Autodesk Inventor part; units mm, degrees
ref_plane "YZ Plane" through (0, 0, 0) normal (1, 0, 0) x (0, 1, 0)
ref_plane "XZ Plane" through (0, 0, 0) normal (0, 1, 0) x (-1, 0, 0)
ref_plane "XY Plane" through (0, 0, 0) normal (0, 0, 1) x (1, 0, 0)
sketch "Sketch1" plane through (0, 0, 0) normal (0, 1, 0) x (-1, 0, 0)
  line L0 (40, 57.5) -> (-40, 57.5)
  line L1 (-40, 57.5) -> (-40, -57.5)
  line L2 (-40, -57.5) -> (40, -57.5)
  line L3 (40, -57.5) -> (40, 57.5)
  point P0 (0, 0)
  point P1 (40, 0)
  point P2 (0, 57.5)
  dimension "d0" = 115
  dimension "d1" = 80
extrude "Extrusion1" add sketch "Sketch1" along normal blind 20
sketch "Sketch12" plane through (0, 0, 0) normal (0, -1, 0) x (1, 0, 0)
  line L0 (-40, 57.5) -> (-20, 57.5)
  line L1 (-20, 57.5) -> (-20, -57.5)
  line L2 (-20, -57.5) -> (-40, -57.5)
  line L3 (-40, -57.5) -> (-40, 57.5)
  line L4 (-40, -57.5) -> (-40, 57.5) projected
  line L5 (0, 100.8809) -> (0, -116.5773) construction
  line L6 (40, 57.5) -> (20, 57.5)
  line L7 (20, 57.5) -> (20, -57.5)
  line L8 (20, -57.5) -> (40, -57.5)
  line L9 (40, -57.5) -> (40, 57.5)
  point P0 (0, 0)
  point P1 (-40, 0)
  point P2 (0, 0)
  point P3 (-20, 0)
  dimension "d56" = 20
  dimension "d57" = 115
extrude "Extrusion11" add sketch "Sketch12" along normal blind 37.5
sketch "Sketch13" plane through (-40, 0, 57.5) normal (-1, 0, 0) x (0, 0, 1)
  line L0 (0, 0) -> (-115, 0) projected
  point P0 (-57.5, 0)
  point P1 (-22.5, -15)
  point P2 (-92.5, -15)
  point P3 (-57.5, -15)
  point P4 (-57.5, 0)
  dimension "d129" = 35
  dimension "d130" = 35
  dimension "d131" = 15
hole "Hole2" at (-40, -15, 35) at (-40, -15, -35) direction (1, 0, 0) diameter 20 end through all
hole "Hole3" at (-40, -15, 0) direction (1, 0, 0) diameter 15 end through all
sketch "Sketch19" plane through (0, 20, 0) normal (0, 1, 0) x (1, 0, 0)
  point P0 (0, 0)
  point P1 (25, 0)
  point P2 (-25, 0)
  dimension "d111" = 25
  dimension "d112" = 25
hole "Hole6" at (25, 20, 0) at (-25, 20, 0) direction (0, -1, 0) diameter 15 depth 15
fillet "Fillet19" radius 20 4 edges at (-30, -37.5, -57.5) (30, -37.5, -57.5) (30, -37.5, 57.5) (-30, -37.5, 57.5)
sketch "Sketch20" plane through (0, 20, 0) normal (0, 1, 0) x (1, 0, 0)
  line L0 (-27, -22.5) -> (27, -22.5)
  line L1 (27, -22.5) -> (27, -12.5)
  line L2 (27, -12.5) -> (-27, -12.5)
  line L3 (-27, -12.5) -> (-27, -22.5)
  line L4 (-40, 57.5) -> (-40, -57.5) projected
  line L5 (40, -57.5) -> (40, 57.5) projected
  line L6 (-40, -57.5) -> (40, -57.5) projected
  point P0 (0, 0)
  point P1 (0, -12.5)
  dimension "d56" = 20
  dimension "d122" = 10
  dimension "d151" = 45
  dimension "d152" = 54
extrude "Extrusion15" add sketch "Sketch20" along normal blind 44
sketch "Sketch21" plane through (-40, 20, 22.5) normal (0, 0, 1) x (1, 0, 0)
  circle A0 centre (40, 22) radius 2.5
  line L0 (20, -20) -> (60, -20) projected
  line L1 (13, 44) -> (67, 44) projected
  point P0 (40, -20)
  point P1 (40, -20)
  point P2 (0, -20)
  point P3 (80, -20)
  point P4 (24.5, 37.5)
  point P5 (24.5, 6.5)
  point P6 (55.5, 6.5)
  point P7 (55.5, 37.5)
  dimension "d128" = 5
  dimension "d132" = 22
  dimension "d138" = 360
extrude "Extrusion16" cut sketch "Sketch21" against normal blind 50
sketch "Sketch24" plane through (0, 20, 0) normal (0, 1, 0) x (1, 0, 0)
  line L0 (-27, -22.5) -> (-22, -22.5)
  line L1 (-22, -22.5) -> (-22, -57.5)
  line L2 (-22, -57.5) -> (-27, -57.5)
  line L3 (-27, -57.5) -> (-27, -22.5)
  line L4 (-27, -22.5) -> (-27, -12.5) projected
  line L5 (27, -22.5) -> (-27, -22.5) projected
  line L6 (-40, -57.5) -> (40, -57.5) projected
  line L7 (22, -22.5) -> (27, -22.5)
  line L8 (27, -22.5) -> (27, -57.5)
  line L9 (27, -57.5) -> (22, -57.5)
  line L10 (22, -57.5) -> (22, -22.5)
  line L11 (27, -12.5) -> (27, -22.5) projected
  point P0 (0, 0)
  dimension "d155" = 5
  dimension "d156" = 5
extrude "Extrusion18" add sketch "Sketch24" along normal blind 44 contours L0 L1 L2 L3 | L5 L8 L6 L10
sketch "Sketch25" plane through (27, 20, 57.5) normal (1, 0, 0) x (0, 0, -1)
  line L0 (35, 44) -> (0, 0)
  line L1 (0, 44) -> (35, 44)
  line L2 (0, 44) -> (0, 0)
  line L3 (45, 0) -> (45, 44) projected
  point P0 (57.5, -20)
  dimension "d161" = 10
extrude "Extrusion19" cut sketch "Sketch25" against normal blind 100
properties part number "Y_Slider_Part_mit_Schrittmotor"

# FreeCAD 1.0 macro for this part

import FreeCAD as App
import Part
import Sketcher
from FreeCAD import Vector


def edges_at(feature, points):
    """Names of the edges that pass closest to the given points."""
    edges = feature.Shape.Edges
    near = lambda p: min(range(len(edges)), key=lambda i: edges[i].distToShape(Part.Vertex(*p))[0])
    return sorted({f"Edge{near(p) + 1}" for p in points})


def add_polygon(sketch, points):
    """Adds a closed chain of lines whose ends are joined by coincident constraints."""
    first, n = sketch.GeometryCount, len(points)
    for a, b in zip(points, points[1:] + points[:1]):
        sketch.addGeometry(Part.LineSegment(App.Vector(*a, 0), App.Vector(*b, 0)), False)
    for i in range(n):
        sketch.addConstraint(Sketcher.Constraint("Coincident", first + i, 2, first + (i + 1) % n, 1))

doc = App.newDocument("Part")
body = doc.addObject("PartDesign::Body", "Body")

# Sketch on XZ plane
sketch1 = body.newObject("Sketcher::SketchObject", "Sketch")
sketch1.AttachmentSupport = (doc.getObject("XZ_Plane"), [""])
sketch1.MapMode = "FlatFace"
add_polygon(sketch1, [(-40, -57.5), (-40, 57.5), (40, 57.5), (40, -57.5)])  # lines 0-3
sketch1.addConstraint(Sketcher.Constraint("Vertical", 0))
sketch1.addConstraint(Sketcher.Constraint("Horizontal", 1))
sketch1.addConstraint(Sketcher.Constraint("Vertical", 2))
sketch1.addConstraint(Sketcher.Constraint("Horizontal", 3))
sketch1.addConstraint(Sketcher.Constraint("Symmetric", 0, 2, 2, 2, -1, 1))
sketch1.addConstraint(Sketcher.Constraint("DistanceX", 1, 1, 1, 2, 80.0))
sketch1.addConstraint(Sketcher.Constraint("DistanceY", 0, 1, 0, 2, 115.0))
pad1 = body.newObject("PartDesign::Pad", "Pad")
pad1.Profile = sketch1
pad1.Length = 20
pad1.Reversed = True

# Sketch on XZ plane
sketch2 = body.newObject("Sketcher::SketchObject", "Sketch001")
sketch2.AttachmentSupport = (doc.getObject("XZ_Plane"), [""])
sketch2.MapMode = "FlatFace"
add_polygon(sketch2, [(-20, 57.5), (-40, 57.5), (-40, -57.5), (-20, -57.5)])  # lines 0-3
add_polygon(sketch2, [(40, -57.5), (40, 57.5), (20, 57.5), (20, -57.5)])  # lines 4-7
sketch2.addConstraint(Sketcher.Constraint("Horizontal", 0))
sketch2.addConstraint(Sketcher.Constraint("Vertical", 1))
sketch2.addConstraint(Sketcher.Constraint("Horizontal", 2))
sketch2.addConstraint(Sketcher.Constraint("Vertical", 3))
sketch2.addConstraint(Sketcher.Constraint("Vertical", 4))
sketch2.addConstraint(Sketcher.Constraint("Horizontal", 5))
sketch2.addConstraint(Sketcher.Constraint("Vertical", 6))
sketch2.addConstraint(Sketcher.Constraint("Horizontal", 7))
sketch2.addConstraint(Sketcher.Constraint("Symmetric", 1, 2, 4, 2, -1, 1))
sketch2.addConstraint(Sketcher.Constraint("Symmetric", 3, 2, 6, 2, -1, 1))
sketch2.addConstraint(Sketcher.Constraint("Horizontal", 3, 2, 4, 2))
sketch2.addConstraint(Sketcher.Constraint("DistanceX", 0, 2, 0, 1, 20.0))
sketch2.addConstraint(Sketcher.Constraint("DistanceY", 1, 2, 1, 1, 115.0))
sketch2.addConstraint(Sketcher.Constraint("DistanceX", 2, 2, -1, 1, 20.0))
pad2 = body.newObject("PartDesign::Pad", "Pad001")
pad2.Profile = sketch2
pad2.Length = 37.5

# Sketch on YZ plane
sketch3 = body.newObject("Sketcher::SketchObject", "Sketch002")
sketch3.AttachmentSupport = (doc.getObject("YZ_Plane"), [""])
sketch3.MapMode = "FlatFace"
sketch3.AttachmentOffset = App.Placement(Vector(0, 0, -40), App.Rotation())
sketch3.addGeometry(Part.Circle(Vector(-15, 35, 0), Vector(0, 0, 1), 10), False)
sketch3.addGeometry(Part.Circle(Vector(-15, -35, 0), Vector(0, 0, 1), 10), False)
sketch3.addConstraint(Sketcher.Constraint("Equal", 0, 1))
sketch3.addConstraint(Sketcher.Constraint("Symmetric", 0, 3, 1, 3, -1))
sketch3.addConstraint(Sketcher.Constraint("Diameter", 0, 20.0))
sketch3.addConstraint(Sketcher.Constraint("DistanceX", 0, 3, -1, 1, 15.0))
sketch3.addConstraint(Sketcher.Constraint("DistanceY", -1, 1, 0, 3, 35.0))
doc.recompute()
hole = body.newObject("PartDesign::Hole", "Hole")
hole.Profile = sketch3
hole.ThreadType = "None"
hole.Diameter = 20
hole.DepthType = "ThroughAll"
hole.Reversed = True

# Sketch on YZ plane
sketch4 = body.newObject("Sketcher::SketchObject", "Sketch003")
sketch4.AttachmentSupport = (doc.getObject("YZ_Plane"), [""])
sketch4.MapMode = "FlatFace"
sketch4.AttachmentOffset = App.Placement(Vector(0, 0, -40), App.Rotation())
sketch4.addGeometry(Part.Circle(Vector(-15, 0, 0), Vector(0, 0, 1), 7.5), False)
sketch4.addConstraint(Sketcher.Constraint("PointOnObject", 0, 3, -1))
sketch4.addConstraint(Sketcher.Constraint("Diameter", 0, 15.0))
sketch4.addConstraint(Sketcher.Constraint("DistanceX", 0, 3, -1, 1, 15.0))
doc.recompute()
hole2 = body.newObject("PartDesign::Hole", "Hole001")
hole2.Profile = sketch4
hole2.ThreadType = "None"
hole2.Diameter = 15
hole2.DepthType = "ThroughAll"
hole2.Reversed = True

# Sketch on XZ plane
sketch5 = body.newObject("Sketcher::SketchObject", "Sketch004")
sketch5.AttachmentSupport = (doc.getObject("XZ_Plane"), [""])
sketch5.MapMode = "FlatFace"
sketch5.AttachmentOffset = App.Placement(Vector(0, 0, -20), App.Rotation())
sketch5.addGeometry(Part.Circle(Vector(25, 0, 0), Vector(0, 0, 1), 7.5), False)
sketch5.addGeometry(Part.Circle(Vector(-25, 0, 0), Vector(0, 0, 1), 7.5), False)
sketch5.addConstraint(Sketcher.Constraint("Equal", 0, 1))
sketch5.addConstraint(Sketcher.Constraint("Symmetric", 0, 3, 1, 3, -1, 1))
sketch5.addConstraint(Sketcher.Constraint("PointOnObject", 0, 3, -1))
sketch5.addConstraint(Sketcher.Constraint("Diameter", 0, 15.0))
sketch5.addConstraint(Sketcher.Constraint("DistanceX", -1, 1, 0, 3, 25.0))
doc.recompute()
hole3 = body.newObject("PartDesign::Hole", "Hole002")
hole3.Profile = sketch5
hole3.ThreadType = "None"
hole3.Diameter = 15
hole3.DepthType = "Dimension"
hole3.Depth = 15
hole3.DrillPoint = "Flat"
hole3.Reversed = True
doc.recompute()

fillet = body.newObject("PartDesign::Fillet", "Fillet")
fillet.Base = (hole3, edges_at(hole3, [
    (-30, -37.5, -57.5),
    (30, -37.5, -57.5),
    (30, -37.5, 57.5),
    (-30, -37.5, 57.5),
]))
fillet.Radius = 20

# Sketch on XZ plane
sketch6 = body.newObject("Sketcher::SketchObject", "Sketch005")
sketch6.AttachmentSupport = (doc.getObject("XZ_Plane"), [""])
sketch6.MapMode = "FlatFace"
sketch6.AttachmentOffset = App.Placement(Vector(0, 0, -20), App.Rotation())
add_polygon(sketch6, [(-27, 12.5), (-27, 22.5), (27, 22.5), (27, 12.5)])  # lines 0-3
sketch6.addConstraint(Sketcher.Constraint("Vertical", 0))
sketch6.addConstraint(Sketcher.Constraint("Horizontal", 1))
sketch6.addConstraint(Sketcher.Constraint("Vertical", 2))
sketch6.addConstraint(Sketcher.Constraint("Horizontal", 3))
sketch6.addConstraint(Sketcher.Constraint("DistanceX", 1, 1, 1, 2, 54.0))
sketch6.addConstraint(Sketcher.Constraint("DistanceY", 0, 1, 0, 2, 10.0))
sketch6.addConstraint(Sketcher.Constraint("DistanceX", 0, 2, -1, 1, 27.0))
sketch6.addConstraint(Sketcher.Constraint("DistanceY", -1, 1, 0, 2, 22.5))
pad3 = body.newObject("PartDesign::Pad", "Pad002")
pad3.Profile = sketch6
pad3.Length = 44
pad3.Reversed = True

# Sketch on XY plane
sketch7 = body.newObject("Sketcher::SketchObject", "Sketch006")
sketch7.AttachmentSupport = (doc.getObject("XY_Plane"), [""])
sketch7.MapMode = "FlatFace"
sketch7.AttachmentOffset = App.Placement(Vector(0, 0, 22.5), App.Rotation())
sketch7.addGeometry(Part.Circle(Vector(0, 42, 0), Vector(0, 0, 1), 2.5), False)
sketch7.addConstraint(Sketcher.Constraint("PointOnObject", 0, 3, -2))
sketch7.addConstraint(Sketcher.Constraint("Diameter", 0, 5.0))
sketch7.addConstraint(Sketcher.Constraint("DistanceY", -1, 1, 0, 3, 42.0))
pocket1 = body.newObject("PartDesign::Pocket", "Pocket")
pocket1.Profile = sketch7
pocket1.Length = 50

# Sketch on XZ plane
sketch8 = body.newObject("Sketcher::SketchObject", "Sketch007")
sketch8.AttachmentSupport = (doc.getObject("XZ_Plane"), [""])
sketch8.MapMode = "FlatFace"
sketch8.AttachmentOffset = App.Placement(Vector(0, 0, -20), App.Rotation())
add_polygon(sketch8, [(-22, 22.5), (-27, 22.5), (-27, 57.5), (-22, 57.5)])  # lines 0-3
add_polygon(sketch8, [(27, 22.5), (22, 22.5), (22, 57.5), (27, 57.5)])  # lines 4-7
sketch8.addConstraint(Sketcher.Constraint("Horizontal", 0))
sketch8.addConstraint(Sketcher.Constraint("Vertical", 1))
sketch8.addConstraint(Sketcher.Constraint("Horizontal", 2))
sketch8.addConstraint(Sketcher.Constraint("Vertical", 3))
sketch8.addConstraint(Sketcher.Constraint("Horizontal", 4))
sketch8.addConstraint(Sketcher.Constraint("Vertical", 5))
sketch8.addConstraint(Sketcher.Constraint("Horizontal", 6))
sketch8.addConstraint(Sketcher.Constraint("Vertical", 7))
sketch8.addConstraint(Sketcher.Constraint("Symmetric", 3, 2, 4, 2, -2))
sketch8.addConstraint(Sketcher.Constraint("Symmetric", 1, 2, 6, 2, -2))
sketch8.addConstraint(Sketcher.Constraint("DistanceX", 0, 2, 0, 1, 5.0))
sketch8.addConstraint(Sketcher.Constraint("DistanceY", 1, 1, 1, 2, 35.0))
sketch8.addConstraint(Sketcher.Constraint("DistanceX", 0, 2, -1, 1, 27.0))
sketch8.addConstraint(Sketcher.Constraint("DistanceY", -1, 1, 0, 2, 22.5))
pad4 = body.newObject("PartDesign::Pad", "Pad003")
pad4.Profile = sketch8
pad4.Length = 44
pad4.Reversed = True

# Sketch on YZ plane
sketch9 = body.newObject("Sketcher::SketchObject", "Sketch008")
sketch9.AttachmentSupport = (doc.getObject("YZ_Plane"), [""])
sketch9.MapMode = "FlatFace"
sketch9.AttachmentOffset = App.Placement(Vector(0, 0, 27), App.Rotation())
add_polygon(sketch9, [(20, 57.5), (64, 22.5), (64, 57.5)])  # lines 0-2
sketch9.addConstraint(Sketcher.Constraint("Vertical", 1))
sketch9.addConstraint(Sketcher.Constraint("Horizontal", 2))
sketch9.addConstraint(Sketcher.Constraint("DistanceX", 2, 2, 2, 1, 44.0))
sketch9.addConstraint(Sketcher.Constraint("DistanceY", 1, 1, 1, 2, 35.0))
sketch9.addConstraint(Sketcher.Constraint("DistanceX", -1, 1, 0, 2, 64.0))
sketch9.addConstraint(Sketcher.Constraint("DistanceY", -1, 1, 0, 2, 22.5))
pocket2 = body.newObject("PartDesign::Pocket", "Pocket001")
pocket2.Profile = sketch9
pocket2.Length = 100

doc.recompute()
